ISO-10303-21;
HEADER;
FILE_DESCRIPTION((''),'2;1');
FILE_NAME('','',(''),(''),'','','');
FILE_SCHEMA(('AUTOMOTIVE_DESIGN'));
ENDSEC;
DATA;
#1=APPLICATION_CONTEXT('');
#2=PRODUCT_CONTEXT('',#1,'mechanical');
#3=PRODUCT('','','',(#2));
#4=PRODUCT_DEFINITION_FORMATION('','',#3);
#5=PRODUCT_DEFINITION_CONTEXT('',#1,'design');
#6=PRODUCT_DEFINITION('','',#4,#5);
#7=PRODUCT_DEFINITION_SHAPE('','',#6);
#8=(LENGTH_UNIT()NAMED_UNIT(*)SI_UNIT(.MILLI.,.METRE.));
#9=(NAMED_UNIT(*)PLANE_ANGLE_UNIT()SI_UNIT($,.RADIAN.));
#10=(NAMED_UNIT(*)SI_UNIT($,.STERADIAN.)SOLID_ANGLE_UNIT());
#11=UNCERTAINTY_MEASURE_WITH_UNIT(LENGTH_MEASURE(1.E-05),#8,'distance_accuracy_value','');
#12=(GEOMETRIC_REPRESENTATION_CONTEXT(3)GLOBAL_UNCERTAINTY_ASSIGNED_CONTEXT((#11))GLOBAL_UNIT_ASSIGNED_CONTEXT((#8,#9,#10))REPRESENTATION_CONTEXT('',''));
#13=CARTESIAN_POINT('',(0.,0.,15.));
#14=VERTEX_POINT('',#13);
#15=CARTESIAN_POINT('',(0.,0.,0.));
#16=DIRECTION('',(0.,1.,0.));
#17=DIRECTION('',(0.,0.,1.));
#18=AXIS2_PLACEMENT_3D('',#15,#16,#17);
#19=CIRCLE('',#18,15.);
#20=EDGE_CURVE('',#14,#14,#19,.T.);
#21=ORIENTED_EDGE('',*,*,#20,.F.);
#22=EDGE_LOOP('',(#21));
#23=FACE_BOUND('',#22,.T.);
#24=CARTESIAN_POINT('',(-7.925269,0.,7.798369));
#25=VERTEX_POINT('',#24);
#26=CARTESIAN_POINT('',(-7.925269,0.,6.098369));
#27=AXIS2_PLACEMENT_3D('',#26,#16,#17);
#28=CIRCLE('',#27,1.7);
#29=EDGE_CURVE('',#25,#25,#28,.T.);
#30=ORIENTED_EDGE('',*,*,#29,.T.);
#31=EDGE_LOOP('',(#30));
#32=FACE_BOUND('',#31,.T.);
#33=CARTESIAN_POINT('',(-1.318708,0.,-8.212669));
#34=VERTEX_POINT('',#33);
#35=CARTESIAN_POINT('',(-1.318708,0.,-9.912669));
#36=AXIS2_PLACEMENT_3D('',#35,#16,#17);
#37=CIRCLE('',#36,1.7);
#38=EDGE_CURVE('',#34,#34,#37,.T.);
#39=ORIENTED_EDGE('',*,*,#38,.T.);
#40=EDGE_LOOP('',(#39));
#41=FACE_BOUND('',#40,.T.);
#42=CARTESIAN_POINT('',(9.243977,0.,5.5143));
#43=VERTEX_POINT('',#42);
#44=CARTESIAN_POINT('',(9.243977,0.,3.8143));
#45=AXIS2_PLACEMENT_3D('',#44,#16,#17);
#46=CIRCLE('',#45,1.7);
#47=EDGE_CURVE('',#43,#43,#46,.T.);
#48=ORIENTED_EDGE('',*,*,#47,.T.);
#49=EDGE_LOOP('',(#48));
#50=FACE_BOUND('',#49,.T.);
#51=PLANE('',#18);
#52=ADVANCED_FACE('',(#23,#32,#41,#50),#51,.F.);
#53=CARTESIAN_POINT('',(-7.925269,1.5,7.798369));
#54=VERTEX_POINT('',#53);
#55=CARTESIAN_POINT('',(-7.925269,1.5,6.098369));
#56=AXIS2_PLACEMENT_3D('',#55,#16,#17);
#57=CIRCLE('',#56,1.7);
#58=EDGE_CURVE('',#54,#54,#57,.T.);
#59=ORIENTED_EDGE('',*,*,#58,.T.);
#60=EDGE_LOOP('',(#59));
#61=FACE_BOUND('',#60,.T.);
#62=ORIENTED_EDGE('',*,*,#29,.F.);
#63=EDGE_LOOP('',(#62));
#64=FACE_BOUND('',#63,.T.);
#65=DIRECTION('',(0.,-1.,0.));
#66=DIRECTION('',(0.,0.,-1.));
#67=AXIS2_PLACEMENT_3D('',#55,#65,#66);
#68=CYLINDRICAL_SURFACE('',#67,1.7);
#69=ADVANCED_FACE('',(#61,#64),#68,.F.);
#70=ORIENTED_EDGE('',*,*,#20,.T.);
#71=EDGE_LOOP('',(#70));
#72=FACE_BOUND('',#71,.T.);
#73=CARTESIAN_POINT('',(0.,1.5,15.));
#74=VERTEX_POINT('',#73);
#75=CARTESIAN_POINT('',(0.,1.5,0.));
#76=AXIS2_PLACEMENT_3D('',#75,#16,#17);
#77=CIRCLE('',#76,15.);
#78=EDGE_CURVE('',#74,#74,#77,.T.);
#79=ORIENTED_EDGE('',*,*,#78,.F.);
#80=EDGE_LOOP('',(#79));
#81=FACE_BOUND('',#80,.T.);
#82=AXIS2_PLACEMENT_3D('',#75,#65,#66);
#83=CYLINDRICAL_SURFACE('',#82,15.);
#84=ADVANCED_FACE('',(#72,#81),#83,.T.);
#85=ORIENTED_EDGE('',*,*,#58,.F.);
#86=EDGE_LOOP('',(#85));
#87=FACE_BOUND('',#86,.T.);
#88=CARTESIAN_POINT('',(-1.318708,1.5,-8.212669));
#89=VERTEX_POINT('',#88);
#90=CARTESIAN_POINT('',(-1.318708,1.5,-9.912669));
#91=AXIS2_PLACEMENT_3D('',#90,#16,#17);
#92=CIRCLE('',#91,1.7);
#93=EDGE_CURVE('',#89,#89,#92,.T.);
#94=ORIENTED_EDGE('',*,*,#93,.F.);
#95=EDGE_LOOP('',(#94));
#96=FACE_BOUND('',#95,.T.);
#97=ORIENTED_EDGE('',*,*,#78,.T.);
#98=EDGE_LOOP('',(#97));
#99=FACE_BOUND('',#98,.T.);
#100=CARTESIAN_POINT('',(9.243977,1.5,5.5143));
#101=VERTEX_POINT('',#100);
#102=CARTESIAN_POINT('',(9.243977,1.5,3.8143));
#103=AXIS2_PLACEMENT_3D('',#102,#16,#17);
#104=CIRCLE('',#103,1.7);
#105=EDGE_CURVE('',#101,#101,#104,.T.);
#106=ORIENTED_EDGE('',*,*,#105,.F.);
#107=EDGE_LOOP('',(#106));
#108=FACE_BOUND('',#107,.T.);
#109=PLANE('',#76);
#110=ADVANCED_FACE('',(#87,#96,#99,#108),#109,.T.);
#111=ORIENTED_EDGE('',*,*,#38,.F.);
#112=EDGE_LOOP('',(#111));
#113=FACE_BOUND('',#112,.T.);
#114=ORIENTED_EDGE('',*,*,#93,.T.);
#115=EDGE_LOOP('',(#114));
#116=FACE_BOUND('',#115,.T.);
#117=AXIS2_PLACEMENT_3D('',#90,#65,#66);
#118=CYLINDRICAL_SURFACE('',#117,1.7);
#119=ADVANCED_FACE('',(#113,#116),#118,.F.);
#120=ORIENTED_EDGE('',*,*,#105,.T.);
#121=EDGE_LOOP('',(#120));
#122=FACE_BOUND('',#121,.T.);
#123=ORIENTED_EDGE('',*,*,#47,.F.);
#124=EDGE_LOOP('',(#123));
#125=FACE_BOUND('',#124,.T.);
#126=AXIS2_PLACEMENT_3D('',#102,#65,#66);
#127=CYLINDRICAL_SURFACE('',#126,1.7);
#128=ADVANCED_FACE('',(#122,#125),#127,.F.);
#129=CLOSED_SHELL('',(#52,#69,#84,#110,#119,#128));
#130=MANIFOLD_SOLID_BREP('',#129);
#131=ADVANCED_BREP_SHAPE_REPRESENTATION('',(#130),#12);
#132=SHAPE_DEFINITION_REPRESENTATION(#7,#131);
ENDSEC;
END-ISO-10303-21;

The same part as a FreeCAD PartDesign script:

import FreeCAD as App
import Part
import Sketcher

doc = App.newDocument("Part")
body = doc.addObject("PartDesign::Body", "Body")

# Sketch on XZ plane
sketch1 = body.newObject("Sketcher::SketchObject", "Sketch")
sketch1.AttachmentSupport = (doc.getObject("XZ_Plane"), [""])
sketch1.MapMode = "FlatFace"
sketch1.addGeometry(Part.Circle(App.Vector(0, 0, 0), App.Vector(0, 0, 1), 15), False)
sketch1.addGeometry(Part.Circle(App.Vector(-1.3, -9.9, 0), App.Vector(0, 0, 1), 1.7), False)
sketch1.addGeometry(Part.Circle(App.Vector(-7.9, 6.1, 0), App.Vector(0, 0, 1), 1.7), False)
sketch1.addGeometry(Part.Circle(App.Vector(9.2, 3.8, 0), App.Vector(0, 0, 1), 1.7), False)
sketch1.addConstraint(Sketcher.Constraint("Coincident", 0, 3, -1, 1))
sketch1.addConstraint(Sketcher.Constraint("Equal", 1, 2))
sketch1.addConstraint(Sketcher.Constraint("Equal", 2, 3))
sketch1.addConstraint(Sketcher.Constraint("Diameter", 0, 30.0))
sketch1.addConstraint(Sketcher.Constraint("Diameter", 1, 3.4))
sketch1.addConstraint(Sketcher.Constraint("DistanceY", -1, 1, 3, 3, 3.8143))
sketch1.addConstraint(Sketcher.Constraint("DistanceY", 1, 3, -1, 1, 9.912669))
sketch1.addConstraint(Sketcher.Constraint("DistanceX", 2, 3, -1, 1, 7.925269))
sketch1.addConstraint(Sketcher.Constraint("DistanceY", -1, 1, 2, 3, 6.098369))
sketch1.addConstraint(Sketcher.Constraint("DistanceX", 2, 3, 1, 3, 6.606561))
sketch1.addConstraint(Sketcher.Constraint("DistanceX", -1, 1, 3, 3, 9.243977))
pad1 = body.newObject("PartDesign::Pad", "Pad")
pad1.Profile = sketch1
pad1.Length = 1.5
pad1.Reversed = True

doc.recompute()
